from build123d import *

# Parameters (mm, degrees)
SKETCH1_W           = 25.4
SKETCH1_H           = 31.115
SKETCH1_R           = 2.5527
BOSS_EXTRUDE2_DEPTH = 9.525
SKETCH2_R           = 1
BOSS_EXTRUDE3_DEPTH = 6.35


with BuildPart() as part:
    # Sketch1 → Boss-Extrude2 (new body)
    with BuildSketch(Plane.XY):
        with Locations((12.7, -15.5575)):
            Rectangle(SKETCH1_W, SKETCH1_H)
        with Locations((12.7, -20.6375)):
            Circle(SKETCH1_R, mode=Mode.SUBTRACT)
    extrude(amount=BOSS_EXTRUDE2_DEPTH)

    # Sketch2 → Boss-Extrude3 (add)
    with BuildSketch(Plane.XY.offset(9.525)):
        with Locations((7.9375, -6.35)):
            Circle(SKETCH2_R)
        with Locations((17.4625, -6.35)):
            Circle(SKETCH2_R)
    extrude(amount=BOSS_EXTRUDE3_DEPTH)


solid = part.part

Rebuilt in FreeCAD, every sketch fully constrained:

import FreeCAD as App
import Part
import Sketcher
from FreeCAD import Vector
Q = App.Units.Quantity

doc = App.newDocument("Part")
params = doc.addObject("Spreadsheet::Sheet", "Params")
for row, (alias, value) in enumerate([
    ("sketch1_width", "1 in"),
    ("sketch1_diameter", "0.201 in"),
    ("sketch1_height", "1.225 in"),
    ("pad1_length", "0.375 in"),
    ("pad2_length", "0.25 in"),
], start=1):
    params.set(f"A{row}", alias)
    params.set(f"B{row}", "=" + value)
    params.setAlias(f"B{row}", alias)

body = doc.addObject("PartDesign::Body", "Body")

# Sketch on XY plane
sketch1 = body.newObject("Sketcher::SketchObject", "Sketch")
sketch1.AttachmentSupport = (doc.getObject("XY_Plane"), [""])
sketch1.MapMode = "FlatFace"
sketch1.addGeometry([
    Part.LineSegment(Vector(0, 0, 0), Vector(0, -31.1, 0)),  # 0
    Part.LineSegment(Vector(0, -31.1, 0), Vector(25.4, -31.1, 0)),  # 1
    Part.LineSegment(Vector(25.4, -31.1, 0), Vector(25.4, 0, 0)),  # 2
    Part.LineSegment(Vector(25.4, 0, 0), Vector(0, 0, 0)),  # 3
    Part.Circle(Vector(12.7, -20.6, 0), Vector(0, 0, 1), 2.6),  # 4
], False)
sketch1.addConstraint([
    Sketcher.Constraint("Coincident", 0, 2, 1, 1),
    Sketcher.Constraint("Coincident", 1, 2, 2, 1),
    Sketcher.Constraint("Coincident", 2, 2, 3, 1),
    Sketcher.Constraint("Coincident", 3, 2, 0, 1),
    Sketcher.Constraint("Vertical", 0),
    Sketcher.Constraint("Horizontal", 1),
    Sketcher.Constraint("Vertical", 2),
    Sketcher.Constraint("Horizontal", 3),
    Sketcher.Constraint("Coincident", 3, 2, -1, 1),
    Sketcher.Constraint("DistanceX", 1, 1, 1, 2, Q("1 in")),
    Sketcher.Constraint("Diameter", 4, Q("0.201 in")),
    Sketcher.Constraint("DistanceX", -1, 1, 4, 3, Q("0.5 in")),
    Sketcher.Constraint("DistanceY", 0, 2, 0, 1, Q("1.225 in")),
    Sketcher.Constraint("DistanceY", 4, 3, -1, 1, Q("0.8125 in")),
])
sketch1.setExpression("Constraints[9]", "Params.sketch1_width")
sketch1.setExpression("Constraints[10]", "Params.sketch1_diameter")
sketch1.setExpression("Constraints[12]", "Params.sketch1_height")
pad1 = body.newObject("PartDesign::Pad", "Pad")
pad1.Profile = sketch1
pad1.setExpression("Length", "Params.pad1_length")

# Sketch on XY plane
sketch2 = body.newObject("Sketcher::SketchObject", "Sketch001")
sketch2.AttachmentSupport = (doc.getObject("XY_Plane"), [""])
sketch2.MapMode = "FlatFace"
sketch2.AttachmentOffset = App.Placement(Vector(0, 0, 0.375 * 25.4), App.Rotation())
sketch2.addGeometry([
    Part.Circle(Vector(7.9, -6.3, 0), Vector(0, 0, 1), 1),
    Part.Circle(Vector(17.5, -6.3, 0), Vector(0, 0, 1), 1),
], False)
sketch2.addConstraint([
    Sketcher.Constraint("Equal", 0, 1),
    Sketcher.Constraint("Horizontal", 0, 3, 1, 3),
    Sketcher.Constraint("Diameter", 0, Q("2 mm")),
    Sketcher.Constraint("DistanceY", 0, 3, -1, 1, Q("0.25 in")),
    Sketcher.Constraint("DistanceX", -1, 1, 0, 3, Q("0.3125 in")),
    Sketcher.Constraint("DistanceX", -1, 1, 1, 3, Q("0.6875 in")),
])
pad2 = body.newObject("PartDesign::Pad", "Pad001")
pad2.Profile = sketch2
pad2.setExpression("Length", "Params.pad2_length")

doc.recompute()
